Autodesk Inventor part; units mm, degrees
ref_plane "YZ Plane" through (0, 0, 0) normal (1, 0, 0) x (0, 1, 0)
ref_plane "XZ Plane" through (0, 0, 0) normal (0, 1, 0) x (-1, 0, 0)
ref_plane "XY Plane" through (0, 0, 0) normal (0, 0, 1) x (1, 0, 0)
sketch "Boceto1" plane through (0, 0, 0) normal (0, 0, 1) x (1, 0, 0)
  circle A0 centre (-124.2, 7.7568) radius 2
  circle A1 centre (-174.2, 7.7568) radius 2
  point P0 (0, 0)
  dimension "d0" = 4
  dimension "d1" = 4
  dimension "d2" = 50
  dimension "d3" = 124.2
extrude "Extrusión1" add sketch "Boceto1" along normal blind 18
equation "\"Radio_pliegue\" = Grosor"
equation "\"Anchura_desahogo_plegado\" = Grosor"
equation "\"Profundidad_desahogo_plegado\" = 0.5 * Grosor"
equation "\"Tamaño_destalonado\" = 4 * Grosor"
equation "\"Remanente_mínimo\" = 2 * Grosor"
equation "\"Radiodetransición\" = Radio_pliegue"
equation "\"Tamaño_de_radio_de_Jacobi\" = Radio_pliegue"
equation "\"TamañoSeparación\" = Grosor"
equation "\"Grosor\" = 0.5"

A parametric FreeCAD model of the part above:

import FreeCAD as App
import Part
import Sketcher

V = App.Vector
Q = App.Units.Quantity

doc = App.newDocument("Part")
body = doc.addObject("PartDesign::Body", "Body")
body.AllowCompound = True

# Sketch on XY plane
sketch1 = body.newObject("Sketcher::SketchObject", "Sketch")
sketch1.AttachmentSupport = (doc.getObject("XY_Plane"), [""])
sketch1.MapMode = "FlatFace"
sketch1.addGeometry(Part.Circle(V(-124.2, 7.8, 0), V(0, 0, 1), 2), False)
sketch1.addGeometry(Part.Circle(V(-174.2, 7.8, 0), V(0, 0, 1), 2), False)
sketch1.addConstraint(Sketcher.Constraint("Equal", 0, 1))
sketch1.addConstraint(Sketcher.Constraint("Horizontal", 0, 3, 1, 3))
sketch1.addConstraint(Sketcher.Constraint("Diameter", 0, Q("4 mm")))
sketch1.addConstraint(Sketcher.Constraint("DistanceX", 1, 3, 0, 3, Q("50 mm")))
sketch1.addConstraint(Sketcher.Constraint("DistanceX", 0, 3, -1, 1, Q("124.2 mm")))
sketch1.addConstraint(Sketcher.Constraint("DistanceY", -1, 1, 0, 3, Q("7.7568 mm")))
pad1 = body.newObject("PartDesign::Pad", "Pad")
pad1.Profile = sketch1
pad1.Length = 18

doc.recompute()
